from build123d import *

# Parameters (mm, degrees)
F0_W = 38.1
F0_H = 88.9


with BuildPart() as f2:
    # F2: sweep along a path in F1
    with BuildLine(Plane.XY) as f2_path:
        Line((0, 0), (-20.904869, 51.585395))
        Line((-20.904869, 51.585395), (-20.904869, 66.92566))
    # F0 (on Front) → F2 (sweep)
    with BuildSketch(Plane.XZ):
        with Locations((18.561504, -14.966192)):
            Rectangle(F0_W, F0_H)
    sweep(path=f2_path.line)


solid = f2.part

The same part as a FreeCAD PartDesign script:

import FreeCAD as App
import Part
import Sketcher
Q = App.Units.Quantity

doc = App.newDocument("Part")
body = doc.addObject("PartDesign::Body", "Body")

sketch1 = doc.addObject("Sketcher::SketchObject", "Sketch")
body.addObject(sketch1)
sketch1.AttachmentSupport = (doc.XZ_Plane, [""])
sketch1.MapMode = "FlatFace"
sketch1.addGeometry([
    Part.LineSegment(App.Vector(-0.488496, 29.483808, 0), App.Vector(-0.488496, -59.416192, 0)),
    Part.LineSegment(App.Vector(-0.488496, -59.416192, 0), App.Vector(37.611504, -59.416192, 0)),
    Part.LineSegment(App.Vector(37.611504, -59.416192, 0), App.Vector(37.611504, 29.483808, 0)),
    Part.LineSegment(App.Vector(37.611504, 29.483808, 0), App.Vector(-0.488496, 29.483808, 0)),
], False)
sketch1.addConstraint([
    Sketcher.Constraint("Coincident", 0, 2, 1, 1),
    Sketcher.Constraint("Coincident", 1, 2, 2, 1),
    Sketcher.Constraint("Coincident", 2, 2, 3, 1),
    Sketcher.Constraint("Coincident", 3, 2, 0, 1),
    Sketcher.Constraint("Vertical", 0),
    Sketcher.Constraint("Horizontal", 1),
    Sketcher.Constraint("Vertical", 2),
    Sketcher.Constraint("Horizontal", 3),
    Sketcher.Constraint("DistanceX", 1, 1, 1, 2, Q("1.5 in")),
    Sketcher.Constraint("DistanceY", 0, 2, 0, 1, Q("3.5 in")),
    Sketcher.Constraint("DistanceY", -1, 1, 2, 2, Q("29.483808 mm")),
    Sketcher.Constraint("DistanceX", 0, 2, -1, 1, Q("0.488496 mm")),
])

sketch2 = doc.addObject("Sketcher::SketchObject", "Sketch001")
body.addObject(sketch2)
sketch2.AttachmentSupport = (doc.XY_Plane, [""])
sketch2.MapMode = "FlatFace"
sketch2.addGeometry([
    Part.LineSegment(App.Vector(0, 0, 0), App.Vector(-20.904869, 51.585395, 0)),
    Part.LineSegment(App.Vector(-20.904869, 51.585395, 0), App.Vector(-20.904869, 66.92566, 0)),
], False)
sketch2.addConstraint([
    Sketcher.Constraint("Coincident", 0, 2, 1, 1),
    Sketcher.Constraint("Vertical", 1),
    Sketcher.Constraint("Coincident", 0, 1, -1, 1),
    Sketcher.Constraint("DistanceY", 1, 1, 1, 2, Q("15.340265 mm")),
    Sketcher.Constraint("DistanceX", 0, 2, -1, 1, Q("20.904869 mm")),
    Sketcher.Constraint("DistanceY", -1, 1, 1, 2, Q("66.92566 mm")),
])
doc.recompute()

additivepipe = doc.addObject("PartDesign::AdditivePipe", "AdditivePipe")
body.addObject(additivepipe)
additivepipe.Profile = sketch1
additivepipe.Spine = (sketch2, ["Edge1", "Edge2"])

doc.recompute()
